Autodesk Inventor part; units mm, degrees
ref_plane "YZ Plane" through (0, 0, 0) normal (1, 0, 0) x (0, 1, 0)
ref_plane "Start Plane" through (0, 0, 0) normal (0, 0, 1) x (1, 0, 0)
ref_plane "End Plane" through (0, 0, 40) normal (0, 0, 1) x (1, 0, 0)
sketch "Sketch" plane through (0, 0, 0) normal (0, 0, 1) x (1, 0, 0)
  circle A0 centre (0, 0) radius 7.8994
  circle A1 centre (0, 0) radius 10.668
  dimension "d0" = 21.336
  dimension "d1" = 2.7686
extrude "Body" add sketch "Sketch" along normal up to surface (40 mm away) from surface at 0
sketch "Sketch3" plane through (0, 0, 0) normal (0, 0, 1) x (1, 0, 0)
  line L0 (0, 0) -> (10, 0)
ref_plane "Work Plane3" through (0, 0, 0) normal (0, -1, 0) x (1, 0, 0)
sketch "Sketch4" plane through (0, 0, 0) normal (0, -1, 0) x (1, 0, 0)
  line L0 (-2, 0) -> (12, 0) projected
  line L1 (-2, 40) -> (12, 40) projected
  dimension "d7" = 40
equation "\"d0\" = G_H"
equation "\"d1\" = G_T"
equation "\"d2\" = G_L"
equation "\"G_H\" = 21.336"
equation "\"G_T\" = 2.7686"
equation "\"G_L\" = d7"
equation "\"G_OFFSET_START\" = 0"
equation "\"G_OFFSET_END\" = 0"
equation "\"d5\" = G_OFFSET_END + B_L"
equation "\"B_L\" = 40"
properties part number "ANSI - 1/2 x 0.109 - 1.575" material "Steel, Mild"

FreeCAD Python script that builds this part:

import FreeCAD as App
import Part
import Sketcher
Q = App.Units.Quantity

doc = App.newDocument("Part")
body = doc.addObject("PartDesign::Body", "Body")

sketch1 = body.newObject("Sketcher::SketchObject", "Sketch")
sketch1.AttachmentSupport = (doc.getObject("XY_Plane"), [""])
sketch1.MapMode = "FlatFace"
sketch1.addGeometry(Part.Circle(App.Vector(0, 0, 0), App.Vector(0, 0, 1), 10.668), False)
sketch1.addGeometry(Part.Circle(App.Vector(0, 0, 0), App.Vector(0, 0, 1), 7.8994), False)
sketch1.addConstraint(Sketcher.Constraint("Coincident", 0, 3, -1, 1))
sketch1.addConstraint(Sketcher.Constraint("Coincident", 1, 3, -1, 1))
sketch1.addConstraint(Sketcher.Constraint("Diameter", 0, Q("0.84 in")))
sketch1.addConstraint(Sketcher.Constraint("Diameter", 1, Q("0.622 in")))
pad1 = body.newObject("PartDesign::Pad", "Pad")
pad1.Profile = sketch1
pad1.Length = Q("1.5748031 in")

doc.recompute()
